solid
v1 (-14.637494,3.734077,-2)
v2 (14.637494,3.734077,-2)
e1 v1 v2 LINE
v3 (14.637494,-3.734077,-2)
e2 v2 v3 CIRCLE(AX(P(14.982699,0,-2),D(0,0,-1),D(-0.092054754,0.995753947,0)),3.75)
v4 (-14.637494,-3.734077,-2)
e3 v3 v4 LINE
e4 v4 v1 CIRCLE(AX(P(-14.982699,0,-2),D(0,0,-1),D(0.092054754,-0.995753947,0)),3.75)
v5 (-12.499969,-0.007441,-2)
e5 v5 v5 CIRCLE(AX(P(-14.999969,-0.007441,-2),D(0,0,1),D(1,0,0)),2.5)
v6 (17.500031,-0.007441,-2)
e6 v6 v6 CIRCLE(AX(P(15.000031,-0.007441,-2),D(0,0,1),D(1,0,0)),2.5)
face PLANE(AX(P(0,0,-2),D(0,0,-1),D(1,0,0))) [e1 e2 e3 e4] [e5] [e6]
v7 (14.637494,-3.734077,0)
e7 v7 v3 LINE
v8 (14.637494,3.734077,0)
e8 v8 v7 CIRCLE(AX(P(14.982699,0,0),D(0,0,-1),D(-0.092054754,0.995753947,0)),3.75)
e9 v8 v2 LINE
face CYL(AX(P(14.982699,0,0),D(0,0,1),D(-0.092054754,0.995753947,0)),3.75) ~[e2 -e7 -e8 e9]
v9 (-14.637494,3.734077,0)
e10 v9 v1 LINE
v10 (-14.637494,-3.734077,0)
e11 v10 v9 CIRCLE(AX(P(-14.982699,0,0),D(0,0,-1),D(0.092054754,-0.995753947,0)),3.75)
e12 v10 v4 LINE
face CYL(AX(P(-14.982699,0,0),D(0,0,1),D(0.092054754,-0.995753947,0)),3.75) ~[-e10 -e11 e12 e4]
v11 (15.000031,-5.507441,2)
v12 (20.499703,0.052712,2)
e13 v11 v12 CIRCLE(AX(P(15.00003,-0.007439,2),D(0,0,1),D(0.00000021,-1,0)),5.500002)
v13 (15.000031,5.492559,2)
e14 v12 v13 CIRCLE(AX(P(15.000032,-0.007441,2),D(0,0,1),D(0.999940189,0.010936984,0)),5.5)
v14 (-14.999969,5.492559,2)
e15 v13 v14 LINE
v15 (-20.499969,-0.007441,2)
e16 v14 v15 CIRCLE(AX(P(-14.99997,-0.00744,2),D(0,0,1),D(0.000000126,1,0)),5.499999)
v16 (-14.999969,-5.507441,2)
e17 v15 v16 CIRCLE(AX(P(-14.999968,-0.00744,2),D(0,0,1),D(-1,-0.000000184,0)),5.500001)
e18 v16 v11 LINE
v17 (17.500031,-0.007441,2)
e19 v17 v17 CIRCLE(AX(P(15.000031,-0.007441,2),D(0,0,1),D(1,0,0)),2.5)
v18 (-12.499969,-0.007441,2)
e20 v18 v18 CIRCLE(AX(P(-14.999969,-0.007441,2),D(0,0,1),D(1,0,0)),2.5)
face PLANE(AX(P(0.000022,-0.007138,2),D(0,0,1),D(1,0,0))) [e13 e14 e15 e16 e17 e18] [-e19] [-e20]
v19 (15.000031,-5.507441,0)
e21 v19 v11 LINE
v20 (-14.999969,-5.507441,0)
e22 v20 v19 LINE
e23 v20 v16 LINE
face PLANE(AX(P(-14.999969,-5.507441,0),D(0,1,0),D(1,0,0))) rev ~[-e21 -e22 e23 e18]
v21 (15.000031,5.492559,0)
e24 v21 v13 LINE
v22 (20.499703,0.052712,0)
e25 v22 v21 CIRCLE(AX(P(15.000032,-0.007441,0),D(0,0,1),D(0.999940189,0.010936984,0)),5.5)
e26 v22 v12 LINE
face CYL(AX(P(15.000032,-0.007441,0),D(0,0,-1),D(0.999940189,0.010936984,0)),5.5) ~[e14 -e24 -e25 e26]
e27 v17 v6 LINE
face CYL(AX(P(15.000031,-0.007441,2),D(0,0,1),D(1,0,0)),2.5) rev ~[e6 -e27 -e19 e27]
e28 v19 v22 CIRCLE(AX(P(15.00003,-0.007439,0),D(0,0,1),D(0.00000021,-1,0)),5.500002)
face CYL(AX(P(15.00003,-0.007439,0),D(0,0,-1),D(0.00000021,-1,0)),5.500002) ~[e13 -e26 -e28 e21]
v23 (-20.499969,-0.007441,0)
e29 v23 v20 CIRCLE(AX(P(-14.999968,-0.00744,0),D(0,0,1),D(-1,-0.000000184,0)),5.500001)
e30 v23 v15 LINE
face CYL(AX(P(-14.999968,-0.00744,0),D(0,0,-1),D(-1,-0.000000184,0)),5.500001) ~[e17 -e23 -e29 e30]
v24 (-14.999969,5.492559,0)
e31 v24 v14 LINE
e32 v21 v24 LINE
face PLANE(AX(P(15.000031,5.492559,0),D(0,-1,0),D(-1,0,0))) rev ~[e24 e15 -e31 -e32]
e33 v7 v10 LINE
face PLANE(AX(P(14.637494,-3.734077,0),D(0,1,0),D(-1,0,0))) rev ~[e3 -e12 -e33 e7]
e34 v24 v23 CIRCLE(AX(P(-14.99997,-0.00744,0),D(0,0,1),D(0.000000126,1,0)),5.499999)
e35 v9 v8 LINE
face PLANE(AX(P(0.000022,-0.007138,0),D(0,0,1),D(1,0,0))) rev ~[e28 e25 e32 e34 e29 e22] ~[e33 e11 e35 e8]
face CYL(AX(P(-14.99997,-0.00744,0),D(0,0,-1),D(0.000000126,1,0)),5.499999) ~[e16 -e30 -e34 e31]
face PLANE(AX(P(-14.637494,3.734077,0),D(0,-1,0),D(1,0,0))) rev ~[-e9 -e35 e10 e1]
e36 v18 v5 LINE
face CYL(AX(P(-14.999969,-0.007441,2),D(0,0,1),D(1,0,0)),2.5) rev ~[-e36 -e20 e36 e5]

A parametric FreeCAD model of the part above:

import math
import FreeCAD as App
import Part
import Sketcher
from FreeCAD import Vector

doc = App.newDocument("Part")
body = doc.addObject("PartDesign::Body", "Body")

# Sketch on XY plane
sketch1 = body.newObject("Sketcher::SketchObject", "Sketch")
sketch1.AttachmentSupport = (doc.getObject("XY_Plane"), [""])
sketch1.MapMode = "FlatFace"
sketch1.addGeometry([
    Part.ArcOfCircle(Part.Circle(Vector(15, 0, 0), Vector(0, 0, 1), 6), math.radians(1), math.radians(90)),  # 0
    Part.LineSegment(Vector(15, 5, 0), Vector(-15, 5, 0)),  # 1
    Part.ArcOfCircle(Part.Circle(Vector(-15, 0, 0), Vector(0, 0, 1), 5), math.radians(90), math.radians(180)),  # 2
    Part.ArcOfCircle(Part.Circle(Vector(-15, 0, 0), Vector(0, 0, 1), 6), math.radians(-180), math.radians(-90)),  # 3
    Part.LineSegment(Vector(-15, -6, 0), Vector(15, -6, 0)),  # 4
    Part.ArcOfCircle(Part.Circle(Vector(15, 0, 0), Vector(0, 0, 1), 6), math.radians(-90), math.radians(1)),  # 5
], False)
sketch1.addConstraint([
    Sketcher.Constraint("Tangent", 0, 2, 1, 1),
    Sketcher.Constraint("Tangent", 1, 2, 2, 1),
    Sketcher.Constraint("Tangent", 2, 2, 3, 1),
    Sketcher.Constraint("Tangent", 3, 2, 4, 1),
    Sketcher.Constraint("Tangent", 4, 2, 5, 1),
    Sketcher.Constraint("Tangent", 5, 2, 0, 1),
    Sketcher.Constraint("Horizontal", 1),
    Sketcher.Constraint("Horizontal", 4),
    Sketcher.Constraint("Equal", 0, 2),
    Sketcher.Constraint("Equal", 2, 3),
    Sketcher.Constraint("Horizontal", 3, 3, 2, 2),
    Sketcher.Constraint("Radius", 0, 5.5),
    Sketcher.Constraint("DistanceX", 1, 2, 1, 1, 30.0),
    Sketcher.Constraint("DistanceX", -1, 1, 0, 3, 15.000032),
    Sketcher.Constraint("DistanceY", 0, 3, -1, 1, 0.007441),
    Sketcher.Constraint("DistanceX", 0, 3, 5, 2, 5.499671),
])
pad1 = body.newObject("PartDesign::Pad", "Pad")
pad1.Profile = sketch1
pad1.Length = 2

# Sketch on XY plane
sketch2 = body.newObject("Sketcher::SketchObject", "Sketch001")
sketch2.AttachmentSupport = (doc.getObject("XY_Plane"), [""])
sketch2.MapMode = "FlatFace"
sketch2.addGeometry([
    Part.LineSegment(Vector(14.6, -3.7, 0), Vector(-14.6, -3.7, 0)),
    Part.ArcOfCircle(Part.Circle(Vector(-15, 0, 0), Vector(0, 0, 1), 3.7), math.radians(85), math.radians(275)),
    Part.LineSegment(Vector(-14.6, 3.7, 0), Vector(14.6, 3.7, 0)),
    Part.ArcOfCircle(Part.Circle(Vector(15, 0, 0), Vector(0, 0, 1), 3.7), math.radians(-95), math.radians(95)),
], False)
sketch2.addConstraint([
    Sketcher.Constraint("Coincident", 0, 2, 1, 2),
    Sketcher.Constraint("Coincident", 1, 1, 2, 1),
    Sketcher.Constraint("Coincident", 2, 2, 3, 2),
    Sketcher.Constraint("Coincident", 3, 1, 0, 1),
    Sketcher.Constraint("Horizontal", 0),
    Sketcher.Constraint("Horizontal", 2),
    Sketcher.Constraint("Equal", 1, 3),
    Sketcher.Constraint("Symmetric", 1, 3, 3, 3, -1, 1),
    Sketcher.Constraint("Symmetric", 0, 2, 1, 1, -1),
    Sketcher.Constraint("Radius", 1, 3.75),
    Sketcher.Constraint("DistanceX", 0, 2, 0, 1, 29.274988),
    Sketcher.Constraint("DistanceX", 1, 3, -1, 1, 14.982699),
])
pad2 = body.newObject("PartDesign::Pad", "Pad001")
pad2.Profile = sketch2
pad2.Length = 2
pad2.Reversed = True

# Sketch on XY plane
sketch3 = body.newObject("Sketcher::SketchObject", "Sketch002")
sketch3.AttachmentSupport = (doc.getObject("XY_Plane"), [""])
sketch3.MapMode = "FlatFace"
sketch3.AttachmentOffset = App.Placement(Vector(0, 0, 2), App.Rotation())
sketch3.addGeometry([
    Part.Circle(Vector(-15, 0, 0), Vector(0, 0, 1), 2.5),
    Part.Circle(Vector(15, 0, 0), Vector(0, 0, 1), 2.5),
], False)
sketch3.addConstraint([
    Sketcher.Constraint("Equal", 0, 1),
    Sketcher.Constraint("Horizontal", 0, 3, 1, 3),
    Sketcher.Constraint("Diameter", 0, 5.0),
    Sketcher.Constraint("DistanceX", 0, 3, 1, 3, 30.0),
    Sketcher.Constraint("DistanceX", 0, 3, -1, 1, 14.999969),
    Sketcher.Constraint("DistanceY", 0, 3, -1, 1, 0.007441),
])
pocket1 = body.newObject("PartDesign::Pocket", "Pocket")
pocket1.Profile = sketch3
pocket1.Type = "ThroughAll"

doc.recompute()
